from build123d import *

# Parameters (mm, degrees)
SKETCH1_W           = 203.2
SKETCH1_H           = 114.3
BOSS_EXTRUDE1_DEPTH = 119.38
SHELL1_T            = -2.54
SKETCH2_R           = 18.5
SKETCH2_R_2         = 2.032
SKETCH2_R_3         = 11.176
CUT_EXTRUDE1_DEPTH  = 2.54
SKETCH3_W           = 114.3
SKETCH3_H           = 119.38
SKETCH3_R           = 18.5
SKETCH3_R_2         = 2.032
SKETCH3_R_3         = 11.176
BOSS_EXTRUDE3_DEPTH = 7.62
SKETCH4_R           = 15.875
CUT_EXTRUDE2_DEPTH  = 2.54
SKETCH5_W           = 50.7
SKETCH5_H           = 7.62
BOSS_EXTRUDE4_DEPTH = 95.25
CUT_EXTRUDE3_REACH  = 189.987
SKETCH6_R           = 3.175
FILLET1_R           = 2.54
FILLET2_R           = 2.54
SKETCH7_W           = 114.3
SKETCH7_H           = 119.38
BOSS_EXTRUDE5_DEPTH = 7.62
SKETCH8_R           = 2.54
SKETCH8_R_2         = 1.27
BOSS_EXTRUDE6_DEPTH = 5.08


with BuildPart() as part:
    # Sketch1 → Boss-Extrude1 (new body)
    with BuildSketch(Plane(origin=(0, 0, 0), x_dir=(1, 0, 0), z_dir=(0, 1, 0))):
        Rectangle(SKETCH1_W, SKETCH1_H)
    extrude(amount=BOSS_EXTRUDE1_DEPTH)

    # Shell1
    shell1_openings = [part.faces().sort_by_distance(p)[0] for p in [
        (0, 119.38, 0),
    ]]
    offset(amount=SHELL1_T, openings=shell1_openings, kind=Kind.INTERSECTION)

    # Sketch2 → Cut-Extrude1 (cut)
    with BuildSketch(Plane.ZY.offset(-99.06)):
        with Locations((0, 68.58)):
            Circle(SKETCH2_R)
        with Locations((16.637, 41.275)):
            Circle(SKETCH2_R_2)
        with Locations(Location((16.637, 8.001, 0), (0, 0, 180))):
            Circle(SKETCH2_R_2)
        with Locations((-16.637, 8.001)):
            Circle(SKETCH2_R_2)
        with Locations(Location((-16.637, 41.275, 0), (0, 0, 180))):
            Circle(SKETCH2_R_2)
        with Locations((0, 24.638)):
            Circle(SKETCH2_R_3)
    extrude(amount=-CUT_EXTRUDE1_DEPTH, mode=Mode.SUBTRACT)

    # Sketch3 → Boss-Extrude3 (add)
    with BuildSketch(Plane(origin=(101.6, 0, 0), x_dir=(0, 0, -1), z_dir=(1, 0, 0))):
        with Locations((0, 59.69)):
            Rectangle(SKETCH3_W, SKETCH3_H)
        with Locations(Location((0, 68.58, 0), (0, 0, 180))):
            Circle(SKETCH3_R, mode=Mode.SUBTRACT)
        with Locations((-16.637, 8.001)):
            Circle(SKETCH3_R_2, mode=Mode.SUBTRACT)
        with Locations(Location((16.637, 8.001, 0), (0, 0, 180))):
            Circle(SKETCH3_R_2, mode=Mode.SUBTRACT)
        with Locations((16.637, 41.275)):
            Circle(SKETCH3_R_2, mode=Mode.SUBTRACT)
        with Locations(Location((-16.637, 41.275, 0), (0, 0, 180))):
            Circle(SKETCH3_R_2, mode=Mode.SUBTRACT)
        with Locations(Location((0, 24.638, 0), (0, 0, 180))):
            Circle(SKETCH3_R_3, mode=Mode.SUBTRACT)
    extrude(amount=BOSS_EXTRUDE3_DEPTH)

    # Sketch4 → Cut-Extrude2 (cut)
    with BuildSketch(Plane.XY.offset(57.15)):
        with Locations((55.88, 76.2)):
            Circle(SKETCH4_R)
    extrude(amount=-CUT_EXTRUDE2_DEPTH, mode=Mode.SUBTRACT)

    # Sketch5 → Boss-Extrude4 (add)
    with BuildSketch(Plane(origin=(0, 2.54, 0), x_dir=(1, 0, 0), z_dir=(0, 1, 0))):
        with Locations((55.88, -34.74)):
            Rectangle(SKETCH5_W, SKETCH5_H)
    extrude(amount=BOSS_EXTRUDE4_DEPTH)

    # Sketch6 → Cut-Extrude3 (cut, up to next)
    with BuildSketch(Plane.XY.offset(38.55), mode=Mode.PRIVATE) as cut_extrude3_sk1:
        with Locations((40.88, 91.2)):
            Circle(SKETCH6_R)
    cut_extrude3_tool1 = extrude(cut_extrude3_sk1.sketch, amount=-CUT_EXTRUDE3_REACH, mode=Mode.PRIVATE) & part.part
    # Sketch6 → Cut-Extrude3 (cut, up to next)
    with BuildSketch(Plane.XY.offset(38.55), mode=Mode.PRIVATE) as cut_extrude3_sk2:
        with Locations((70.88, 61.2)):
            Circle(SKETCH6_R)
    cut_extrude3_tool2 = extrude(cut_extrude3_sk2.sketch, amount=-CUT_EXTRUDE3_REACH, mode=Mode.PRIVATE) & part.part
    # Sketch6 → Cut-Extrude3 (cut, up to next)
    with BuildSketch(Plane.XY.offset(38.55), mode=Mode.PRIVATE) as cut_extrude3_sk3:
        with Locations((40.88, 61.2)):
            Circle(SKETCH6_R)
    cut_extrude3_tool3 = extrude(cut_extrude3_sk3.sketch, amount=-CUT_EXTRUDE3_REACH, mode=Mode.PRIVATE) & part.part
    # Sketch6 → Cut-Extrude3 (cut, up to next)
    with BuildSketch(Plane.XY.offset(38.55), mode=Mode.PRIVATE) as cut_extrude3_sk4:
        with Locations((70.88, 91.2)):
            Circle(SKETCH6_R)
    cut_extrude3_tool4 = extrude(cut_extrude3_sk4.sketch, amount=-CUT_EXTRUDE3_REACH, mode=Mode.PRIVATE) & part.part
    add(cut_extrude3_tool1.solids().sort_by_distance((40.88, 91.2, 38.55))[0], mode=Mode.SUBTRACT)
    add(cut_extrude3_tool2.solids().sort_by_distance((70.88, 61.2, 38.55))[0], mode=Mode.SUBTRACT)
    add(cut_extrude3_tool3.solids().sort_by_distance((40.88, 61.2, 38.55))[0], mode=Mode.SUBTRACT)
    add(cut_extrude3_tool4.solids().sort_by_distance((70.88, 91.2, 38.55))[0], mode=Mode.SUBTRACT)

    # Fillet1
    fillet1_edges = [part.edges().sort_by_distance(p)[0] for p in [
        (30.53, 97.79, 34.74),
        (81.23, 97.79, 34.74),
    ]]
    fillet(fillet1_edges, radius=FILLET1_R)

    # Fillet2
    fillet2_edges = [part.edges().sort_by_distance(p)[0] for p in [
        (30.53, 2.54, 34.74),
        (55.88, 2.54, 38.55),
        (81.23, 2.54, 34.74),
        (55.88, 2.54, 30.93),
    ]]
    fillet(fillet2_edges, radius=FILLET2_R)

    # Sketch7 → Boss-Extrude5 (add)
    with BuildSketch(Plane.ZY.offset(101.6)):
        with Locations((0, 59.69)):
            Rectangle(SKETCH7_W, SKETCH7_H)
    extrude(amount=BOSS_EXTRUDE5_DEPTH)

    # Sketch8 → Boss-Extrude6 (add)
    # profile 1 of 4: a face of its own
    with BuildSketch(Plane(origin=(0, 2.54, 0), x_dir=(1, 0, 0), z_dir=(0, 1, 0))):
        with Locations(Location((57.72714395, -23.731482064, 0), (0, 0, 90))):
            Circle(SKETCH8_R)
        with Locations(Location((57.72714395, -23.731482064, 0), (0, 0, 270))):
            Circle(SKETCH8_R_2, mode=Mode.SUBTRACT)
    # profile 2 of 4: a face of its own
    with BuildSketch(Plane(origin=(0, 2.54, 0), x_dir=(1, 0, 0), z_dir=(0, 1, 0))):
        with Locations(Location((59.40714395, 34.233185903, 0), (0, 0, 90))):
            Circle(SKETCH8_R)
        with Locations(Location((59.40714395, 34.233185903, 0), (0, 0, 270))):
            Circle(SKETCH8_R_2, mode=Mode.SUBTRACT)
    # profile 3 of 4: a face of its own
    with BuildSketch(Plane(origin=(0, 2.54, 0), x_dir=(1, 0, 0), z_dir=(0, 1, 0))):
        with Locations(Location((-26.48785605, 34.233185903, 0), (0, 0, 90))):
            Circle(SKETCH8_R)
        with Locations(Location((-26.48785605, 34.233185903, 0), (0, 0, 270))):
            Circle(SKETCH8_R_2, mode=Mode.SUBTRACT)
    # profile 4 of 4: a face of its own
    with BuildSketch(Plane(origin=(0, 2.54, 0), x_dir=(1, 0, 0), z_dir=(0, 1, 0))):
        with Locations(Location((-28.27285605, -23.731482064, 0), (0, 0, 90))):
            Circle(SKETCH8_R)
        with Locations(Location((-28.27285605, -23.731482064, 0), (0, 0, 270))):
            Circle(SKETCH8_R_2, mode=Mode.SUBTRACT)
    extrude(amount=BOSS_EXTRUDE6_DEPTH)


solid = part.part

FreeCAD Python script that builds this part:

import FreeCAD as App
import Part
import Sketcher
Q = App.Units.Quantity


def edges_at(feature, points):
    """Names of the edges that pass closest to the given points."""
    edges = feature.Shape.Edges
    near = lambda p: min(range(len(edges)), key=lambda i: edges[i].distToShape(Part.Vertex(*p))[0])
    return sorted({f"Edge{near(p) + 1}" for p in points})


def faces_at(feature, points):
    """Names of the faces that lie closest to the given points."""
    faces = feature.Shape.Faces
    near = lambda p: min(range(len(faces)), key=lambda i: faces[i].distToShape(Part.Vertex(*p))[0])
    return sorted({f"Face{near(p) + 1}" for p in points})


def add_polygon(sketch, points):
    """Adds a closed chain of lines whose ends are joined by coincident constraints."""
    first, n = sketch.GeometryCount, len(points)
    for a, b in zip(points, points[1:] + points[:1]):
        sketch.addGeometry(Part.LineSegment(App.Vector(*a, 0), App.Vector(*b, 0)), False)
    for i in range(n):
        sketch.addConstraint(Sketcher.Constraint("Coincident", first + i, 2, first + (i + 1) % n, 1))

doc = App.newDocument("Part")
params = doc.addObject("Spreadsheet::Sheet", "Params")
for row, (alias, value) in enumerate([
    ("sketch1_width", "8 in"),
    ("sketch1_height", "4.5 in"),
    ("pad1_length", "4.7 in"),
    ("thickness_wall", "0.1 in"),
    ("sketch2_diameter", "0.16 in"),
    ("sketch2_diameter2", "0.88 in"),
    ("pocket1_length", "0.1 in"),
    ("sketch3_diameter", "0.16 in"),
    ("sketch3_diameter2", "0.88 in"),
    ("sketch3_width", "4.7 in"),
    ("sketch3_height", "4.5 in"),
    ("pad2_length", "0.3 in"),
    ("sketch4_diameter", "1.25 in"),
    ("pocket2_length", "0.1 in"),
    ("sketch5_height", "0.3 in"),
    ("pad3_length", "3.75 in"),
    ("sketch6_diameter", "0.25 in"),
    ("sketch7_diameter", "0.25 in"),
    ("sketch8_diameter", "0.25 in"),
    ("sketch9_diameter", "0.25 in"),
    ("fillet_radius", "0.1 in"),
    ("fillet2_radius", "0.1 in"),
    ("sketch10_width", "4.7 in"),
    ("sketch10_height", "4.5 in"),
    ("pad4_length", "0.3 in"),
    ("sketch11_diameter", "0.2 in"),
    ("sketch11_diameter2", "0.1 in"),
    ("pad5_length", "0.2 in"),
], start=1):
    params.set(f"A{row}", alias)
    params.set(f"B{row}", "=" + value)
    params.setAlias(f"B{row}", alias)

body = doc.addObject("PartDesign::Body", "Body")

# Sketch on XZ plane
sketch1 = body.newObject("Sketcher::SketchObject", "Sketch")
sketch1.AttachmentSupport = (doc.getObject("XZ_Plane"), [""])
sketch1.MapMode = "FlatFace"
add_polygon(sketch1, [(-102, -57), (-102, 57), (102, 57), (102, -57)])  # lines 0-3
sketch1.addConstraint([
    Sketcher.Constraint("Vertical", 0),
    Sketcher.Constraint("Horizontal", 1),
    Sketcher.Constraint("Vertical", 2),
    Sketcher.Constraint("Horizontal", 3),
    Sketcher.Constraint("Symmetric", 0, 2, 2, 2, -1, 1),
    Sketcher.Constraint("DistanceX", 1, 1, 1, 2, Q("8 in")),
    Sketcher.Constraint("DistanceY", 0, 1, 0, 2, Q("4.5 in")),
])
sketch1.setExpression("Constraints[9]", "Params.sketch1_width")
sketch1.setExpression("Constraints[10]", "Params.sketch1_height")
pad1 = body.newObject("PartDesign::Pad", "Pad")
pad1.Profile = sketch1
pad1.setExpression("Length", "Params.pad1_length")
pad1.Reversed = True
doc.recompute()

thickness = body.newObject("PartDesign::Thickness", "Thickness")
thickness.Base = (pad1, faces_at(pad1, [(0, 119.38, 0)]))
thickness.setExpression("Value", "Params.thickness_wall")
thickness.Reversed = True
thickness.Join = "Intersection"

# Sketch on YZ plane
sketch2 = body.newObject("Sketcher::SketchObject", "Sketch001")
sketch2.AttachmentSupport = (doc.getObject("YZ_Plane"), [""])
sketch2.MapMode = "FlatFace"
sketch2.AttachmentOffset = App.Placement(App.Vector(0, 0, 3.9 * 25.4), App.Rotation())
sketch2.addGeometry([
    Part.Circle(App.Vector(68.6, 0, 0), App.Vector(0, 0, 1), 18.5),  # 0
    Part.Circle(App.Vector(41.3, 16.6, 0), App.Vector(0, 0, 1), 2),  # 1
    Part.Circle(App.Vector(8, 16.6, 0), App.Vector(0, 0, 1), 2),  # 2
    Part.Circle(App.Vector(8, -16.6, 0), App.Vector(0, 0, 1), 2),  # 3
    Part.Circle(App.Vector(41.3, -16.6, 0), App.Vector(0, 0, 1), 2),  # 4
    Part.Circle(App.Vector(24.6, 0, 0), App.Vector(0, 0, 1), 11.2),  # 5
], False)
sketch2.addConstraint([
    Sketcher.Constraint("Equal", 1, 2),
    Sketcher.Constraint("Equal", 2, 3),
    Sketcher.Constraint("Equal", 3, 4),
    Sketcher.Constraint("Symmetric", 2, 3, 3, 3, -1),
    Sketcher.Constraint("Symmetric", 1, 3, 4, 3, -1),
    Sketcher.Constraint("PointOnObject", 0, 3, -1),
    Sketcher.Constraint("PointOnObject", 5, 3, -1),
    Sketcher.Constraint("Horizontal", 1, 3, 2, 3),
    Sketcher.Constraint("Diameter", 1, Q("0.16 in")),
    Sketcher.Constraint("Diameter", 5, Q("0.88 in")),
    Sketcher.Constraint("DistanceX", -1, 1, 0, 3, Q("2.7 in")),
    Sketcher.Constraint("Diameter", 0, Q("37 mm")),
    Sketcher.Constraint("DistanceX", -1, 1, 5, 3, Q("0.97 in")),
    Sketcher.Constraint("DistanceX", 2, 3, 1, 3, Q("1.31 in")),
    Sketcher.Constraint("DistanceY", 3, 3, 2, 3, Q("1.31 in")),
    Sketcher.Constraint("DistanceX", -1, 1, 1, 3, Q("1.625 in")),
])
sketch2.setExpression("Constraints[8]", "Params.sketch2_diameter")
sketch2.setExpression("Constraints[9]", "Params.sketch2_diameter2")
pocket1 = body.newObject("PartDesign::Pocket", "Pocket")
pocket1.Profile = sketch2
pocket1.setExpression("Length", "Params.pocket1_length")
pocket1.Reversed = True

# Sketch on YZ plane
sketch3 = body.newObject("Sketcher::SketchObject", "Sketch002")
sketch3.AttachmentSupport = (doc.getObject("YZ_Plane"), [""])
sketch3.MapMode = "FlatFace"
sketch3.AttachmentOffset = App.Placement(App.Vector(0, 0, 4 * 25.4), App.Rotation())
add_polygon(sketch3, [(119.4, 57.1), (0, 57.1), (0, -57.1), (119.4, -57.1)])  # lines 0-3
sketch3.addGeometry(Part.Circle(App.Vector(8, 16.6, 0), App.Vector(0, 0, 1), 2), False)  # 4
sketch3.addGeometry(Part.Circle(App.Vector(41.3, 16.6, 0), App.Vector(0, 0, 1), 2), False)  # 5
sketch3.addGeometry(Part.Circle(App.Vector(24.6, 0, 0), App.Vector(0, 0, 1), 11.2), False)  # 6
sketch3.addGeometry(Part.Circle(App.Vector(8, -16.6, 0), App.Vector(0, 0, 1), 2), False)  # 7
sketch3.addGeometry(Part.Circle(App.Vector(41.3, -16.6, 0), App.Vector(0, 0, 1), 2), False)  # 8
sketch3.addGeometry(Part.Circle(App.Vector(68.6, 0, 0), App.Vector(0, 0, 1), 18.5), False)  # 9
sketch3.addConstraint([
    Sketcher.Constraint("Horizontal", 0),
    Sketcher.Constraint("Vertical", 1),
    Sketcher.Constraint("Horizontal", 2),
    Sketcher.Constraint("Vertical", 3),
    Sketcher.Constraint("Equal", 4, 5),
    Sketcher.Constraint("Equal", 5, 7),
    Sketcher.Constraint("Equal", 7, 8),
    Sketcher.Constraint("Symmetric", 0, 2, 1, 2, -1, 1),
    Sketcher.Constraint("Symmetric", 4, 3, 7, 3, -1),
    Sketcher.Constraint("Symmetric", 5, 3, 8, 3, -1),
    Sketcher.Constraint("PointOnObject", 6, 3, -1),
    Sketcher.Constraint("PointOnObject", 9, 3, -1),
    Sketcher.Constraint("Horizontal", 4, 3, 5, 3),
    Sketcher.Constraint("Diameter", 4, Q("0.16 in")),
    Sketcher.Constraint("Diameter", 6, Q("0.88 in")),
    Sketcher.Constraint("DistanceX", 0, 2, 0, 1, Q("4.7 in")),
    Sketcher.Constraint("DistanceY", 1, 2, 1, 1, Q("4.5 in")),
    Sketcher.Constraint("DistanceX", 9, 3, 2, 2, Q("2 in")),
    Sketcher.Constraint("Diameter", 9, Q("37 mm")),
    Sketcher.Constraint("DistanceX", -1, 1, 6, 3, Q("0.97 in")),
    Sketcher.Constraint("DistanceX", 4, 3, 5, 3, Q("1.31 in")),
    Sketcher.Constraint("DistanceY", 7, 3, 4, 3, Q("1.31 in")),
    Sketcher.Constraint("DistanceX", -1, 1, 4, 3, Q("0.315 in")),
])
sketch3.setExpression("Constraints[17]", "Params.sketch3_diameter")
sketch3.setExpression("Constraints[18]", "Params.sketch3_diameter2")
sketch3.setExpression("Constraints[19]", "Params.sketch3_width")
sketch3.setExpression("Constraints[20]", "Params.sketch3_height")
pad2 = body.newObject("PartDesign::Pad", "Pad001")
pad2.Profile = sketch3
pad2.setExpression("Length", "Params.pad2_length")

# Sketch on XY plane
sketch4 = body.newObject("Sketcher::SketchObject", "Sketch003")
sketch4.AttachmentSupport = (doc.getObject("XY_Plane"), [""])
sketch4.MapMode = "FlatFace"
sketch4.AttachmentOffset = App.Placement(App.Vector(0, 0, 2.25 * 25.4), App.Rotation())
sketch4.addGeometry(Part.Circle(App.Vector(56, 76, 0), App.Vector(0, 0, 1), 16), False)
sketch4.addConstraint([
    Sketcher.Constraint("Diameter", 0, Q("1.25 in")),
    Sketcher.Constraint("DistanceY", -1, 1, 0, 3, Q("3 in")),
    Sketcher.Constraint("DistanceX", -1, 1, 0, 3, Q("2.2 in")),
])
sketch4.setExpression("Constraints[0]", "Params.sketch4_diameter")
pocket2 = body.newObject("PartDesign::Pocket", "Pocket001")
pocket2.Profile = sketch4
pocket2.setExpression("Length", "Params.pocket2_length")

# Sketch on XZ plane
sketch5 = body.newObject("Sketcher::SketchObject", "Sketch004")
sketch5.AttachmentSupport = (doc.getObject("XZ_Plane"), [""])
sketch5.MapMode = "FlatFace"
sketch5.AttachmentOffset = App.Placement(App.Vector(0, 0, -0.1 * 25.4), App.Rotation())
add_polygon(sketch5, [(31, 31), (31, 39), (81, 39), (81, 31)])  # lines 0-3
sketch5.addConstraint([
    Sketcher.Constraint("Vertical", 0),
    Sketcher.Constraint("Horizontal", 1),
    Sketcher.Constraint("Vertical", 2),
    Sketcher.Constraint("Horizontal", 3),
    Sketcher.Constraint("DistanceY", 0, 1, 0, 2, Q("0.3 in")),
    Sketcher.Constraint("DistanceX", 1, 1, 1, 2, Q("50.7 mm")),
    Sketcher.Constraint("DistanceX", -1, 1, 0, 2, Q("30.53 mm")),
    Sketcher.Constraint("DistanceY", -1, 1, 0, 2, Q("38.55 mm")),
])
sketch5.setExpression("Constraints[8]", "Params.sketch5_height")
pad3 = body.newObject("PartDesign::Pad", "Pad002")
pad3.Profile = sketch5
pad3.setExpression("Length", "Params.pad3_length")
pad3.Reversed = True

# Sketch on XY plane
sketch6 = body.newObject("Sketcher::SketchObject", "Sketch005")
sketch6.AttachmentSupport = (doc.getObject("XY_Plane"), [""])
sketch6.MapMode = "FlatFace"
sketch6.AttachmentOffset = App.Placement(App.Vector(0, 0, 38.55), App.Rotation())
sketch6.addGeometry(Part.Circle(App.Vector(40.9, 91.2, 0), App.Vector(0, 0, 1), 3.2), False)
sketch6.addConstraint([
    Sketcher.Constraint("Diameter", 0, Q("0.25 in")),
    Sketcher.Constraint("DistanceX", -1, 1, 0, 3, Q("40.88 mm")),
    Sketcher.Constraint("DistanceY", -1, 1, 0, 3, Q("91.2 mm")),
])
sketch6.setExpression("Constraints[0]", "Params.sketch6_diameter")
pocket3 = body.newObject("PartDesign::Pocket", "Pocket002")
pocket3.Profile = sketch6
pocket3.Type = "UpToFirst"

# Sketch on XY plane
sketch7 = body.newObject("Sketcher::SketchObject", "Sketch006")
sketch7.AttachmentSupport = (doc.getObject("XY_Plane"), [""])
sketch7.MapMode = "FlatFace"
sketch7.AttachmentOffset = App.Placement(App.Vector(0, 0, 38.55), App.Rotation())
sketch7.addGeometry(Part.Circle(App.Vector(70.9, 61.2, 0), App.Vector(0, 0, 1), 3.2), False)
sketch7.addConstraint([
    Sketcher.Constraint("Diameter", 0, Q("0.25 in")),
    Sketcher.Constraint("DistanceX", -1, 1, 0, 3, Q("70.88 mm")),
    Sketcher.Constraint("DistanceY", -1, 1, 0, 3, Q("61.2 mm")),
])
sketch7.setExpression("Constraints[0]", "Params.sketch7_diameter")
pocket4 = body.newObject("PartDesign::Pocket", "Pocket003")
pocket4.Profile = sketch7
pocket4.Type = "UpToFirst"

# Sketch on XY plane
sketch8 = body.newObject("Sketcher::SketchObject", "Sketch007")
sketch8.AttachmentSupport = (doc.getObject("XY_Plane"), [""])
sketch8.MapMode = "FlatFace"
sketch8.AttachmentOffset = App.Placement(App.Vector(0, 0, 38.55), App.Rotation())
sketch8.addGeometry(Part.Circle(App.Vector(40.9, 61.2, 0), App.Vector(0, 0, 1), 3.2), False)
sketch8.addConstraint([
    Sketcher.Constraint("Diameter", 0, Q("0.25 in")),
    Sketcher.Constraint("DistanceX", -1, 1, 0, 3, Q("40.88 mm")),
    Sketcher.Constraint("DistanceY", -1, 1, 0, 3, Q("61.2 mm")),
])
sketch8.setExpression("Constraints[0]", "Params.sketch8_diameter")
pocket5 = body.newObject("PartDesign::Pocket", "Pocket004")
pocket5.Profile = sketch8
pocket5.Type = "UpToFirst"

# Sketch on XY plane
sketch9 = body.newObject("Sketcher::SketchObject", "Sketch008")
sketch9.AttachmentSupport = (doc.getObject("XY_Plane"), [""])
sketch9.MapMode = "FlatFace"
sketch9.AttachmentOffset = App.Placement(App.Vector(0, 0, 38.55), App.Rotation())
sketch9.addGeometry(Part.Circle(App.Vector(70.9, 91.2, 0), App.Vector(0, 0, 1), 3.2), False)
sketch9.addConstraint([
    Sketcher.Constraint("Diameter", 0, Q("0.25 in")),
    Sketcher.Constraint("DistanceX", -1, 1, 0, 3, Q("70.88 mm")),
    Sketcher.Constraint("DistanceY", -1, 1, 0, 3, Q("91.2 mm")),
])
sketch9.setExpression("Constraints[0]", "Params.sketch9_diameter")
pocket6 = body.newObject("PartDesign::Pocket", "Pocket005")
pocket6.Profile = sketch9
pocket6.Type = "UpToFirst"
doc.recompute()

fillet = body.newObject("PartDesign::Fillet", "Fillet")
fillet.Base = (pocket6, edges_at(pocket6, [(30.53, 97.79, 34.74), (81.23, 97.79, 34.74)]))
fillet.setExpression("Radius", "Params.fillet_radius")
doc.recompute()

fillet2 = body.newObject("PartDesign::Fillet", "Fillet001")
fillet2.Base = (fillet, edges_at(fillet, [
    (30.53, 2.54, 34.74),
    (55.88, 2.54, 38.55),
    (81.23, 2.54, 34.74),
    (55.88, 2.54, 30.93),
]))
fillet2.setExpression("Radius", "Params.fillet2_radius")

# Sketch on YZ plane
sketch10 = body.newObject("Sketcher::SketchObject", "Sketch009")
sketch10.AttachmentSupport = (doc.getObject("YZ_Plane"), [""])
sketch10.MapMode = "FlatFace"
sketch10.AttachmentOffset = App.Placement(App.Vector(0, 0, -4 * 25.4), App.Rotation())
add_polygon(sketch10, [(119, -57), (0, -57), (0, 57), (119, 57)])  # lines 0-3
sketch10.addConstraint([
    Sketcher.Constraint("Horizontal", 0),
    Sketcher.Constraint("Vertical", 1),
    Sketcher.Constraint("Horizontal", 2),
    Sketcher.Constraint("Vertical", 3),
    Sketcher.Constraint("Symmetric", 0, 2, 1, 2, -1, 1),
    Sketcher.Constraint("DistanceX", 0, 2, 0, 1, Q("4.7 in")),
    Sketcher.Constraint("DistanceY", 1, 1, 1, 2, Q("4.5 in")),
])
sketch10.setExpression("Constraints[9]", "Params.sketch10_width")
sketch10.setExpression("Constraints[10]", "Params.sketch10_height")
pad4 = body.newObject("PartDesign::Pad", "Pad003")
pad4.Profile = sketch10
pad4.setExpression("Length", "Params.pad4_length")
pad4.Reversed = True

# Sketch on XZ plane
sketch11 = body.newObject("Sketcher::SketchObject", "Sketch010")
sketch11.AttachmentSupport = (doc.getObject("XZ_Plane"), [""])
sketch11.MapMode = "FlatFace"
sketch11.AttachmentOffset = App.Placement(App.Vector(0, 0, -0.1 * 25.4), App.Rotation())
sketch11.addGeometry([
    Part.Circle(App.Vector(57.7, 23.7, 0), App.Vector(0, 0, 1), 2.5),  # 0
    Part.Circle(App.Vector(57.7, 23.7, 0), App.Vector(0, 0, 1), 1.3),  # 1
    Part.Circle(App.Vector(59.4, -34.2, 0), App.Vector(0, 0, 1), 2.5),  # 2
    Part.Circle(App.Vector(59.4, -34.2, 0), App.Vector(0, 0, 1), 1.3),  # 3
    Part.Circle(App.Vector(-26.5, -34.2, 0), App.Vector(0, 0, 1), 2.5),  # 4
    Part.Circle(App.Vector(-26.5, -34.2, 0), App.Vector(0, 0, 1), 1.3),  # 5
    Part.Circle(App.Vector(-28.3, 23.7, 0), App.Vector(0, 0, 1), 2.5),  # 6
    Part.Circle(App.Vector(-28.3, 23.7, 0), App.Vector(0, 0, 1), 1.3),  # 7
], False)
sketch11.addConstraint([
    Sketcher.Constraint("Coincident", 1, 3, 0, 3),
    Sketcher.Constraint("Coincident", 3, 3, 2, 3),
    Sketcher.Constraint("Coincident", 5, 3, 4, 3),
    Sketcher.Constraint("Coincident", 7, 3, 6, 3),
    Sketcher.Constraint("Equal", 0, 2),
    Sketcher.Constraint("Equal", 1, 3),
    Sketcher.Constraint("Equal", 2, 4),
    Sketcher.Constraint("Equal", 3, 5),
    Sketcher.Constraint("Equal", 4, 6),
    Sketcher.Constraint("Equal", 5, 7),
    Sketcher.Constraint("Horizontal", 3, 3, 4, 3),
    Sketcher.Constraint("Horizontal", 1, 3, 6, 3),
    Sketcher.Constraint("Diameter", 0, Q("0.2 in")),
    Sketcher.Constraint("Diameter", 1, Q("0.1 in")),
    Sketcher.Constraint("DistanceX", 0, 3, 2, 3, Q("1.68 mm")),
    Sketcher.Constraint("DistanceX", 4, 3, 2, 3, Q("85.895 mm")),
    Sketcher.Constraint("DistanceX", 6, 3, 4, 3, Q("1.785 mm")),
    Sketcher.Constraint("DistanceX", -1, 1, 0, 3, Q("57.727144 mm")),
    Sketcher.Constraint("DistanceY", -1, 1, 0, 3, Q("23.731482 mm")),
    Sketcher.Constraint("DistanceY", 2, 3, -1, 1, Q("34.233186 mm")),
])
sketch11.setExpression("Constraints[12]", "Params.sketch11_diameter")
sketch11.setExpression("Constraints[13]", "Params.sketch11_diameter2")
pad5 = body.newObject("PartDesign::Pad", "Pad004")
pad5.Profile = sketch11
pad5.setExpression("Length", "Params.pad5_length")
pad5.Reversed = True

doc.recompute()
